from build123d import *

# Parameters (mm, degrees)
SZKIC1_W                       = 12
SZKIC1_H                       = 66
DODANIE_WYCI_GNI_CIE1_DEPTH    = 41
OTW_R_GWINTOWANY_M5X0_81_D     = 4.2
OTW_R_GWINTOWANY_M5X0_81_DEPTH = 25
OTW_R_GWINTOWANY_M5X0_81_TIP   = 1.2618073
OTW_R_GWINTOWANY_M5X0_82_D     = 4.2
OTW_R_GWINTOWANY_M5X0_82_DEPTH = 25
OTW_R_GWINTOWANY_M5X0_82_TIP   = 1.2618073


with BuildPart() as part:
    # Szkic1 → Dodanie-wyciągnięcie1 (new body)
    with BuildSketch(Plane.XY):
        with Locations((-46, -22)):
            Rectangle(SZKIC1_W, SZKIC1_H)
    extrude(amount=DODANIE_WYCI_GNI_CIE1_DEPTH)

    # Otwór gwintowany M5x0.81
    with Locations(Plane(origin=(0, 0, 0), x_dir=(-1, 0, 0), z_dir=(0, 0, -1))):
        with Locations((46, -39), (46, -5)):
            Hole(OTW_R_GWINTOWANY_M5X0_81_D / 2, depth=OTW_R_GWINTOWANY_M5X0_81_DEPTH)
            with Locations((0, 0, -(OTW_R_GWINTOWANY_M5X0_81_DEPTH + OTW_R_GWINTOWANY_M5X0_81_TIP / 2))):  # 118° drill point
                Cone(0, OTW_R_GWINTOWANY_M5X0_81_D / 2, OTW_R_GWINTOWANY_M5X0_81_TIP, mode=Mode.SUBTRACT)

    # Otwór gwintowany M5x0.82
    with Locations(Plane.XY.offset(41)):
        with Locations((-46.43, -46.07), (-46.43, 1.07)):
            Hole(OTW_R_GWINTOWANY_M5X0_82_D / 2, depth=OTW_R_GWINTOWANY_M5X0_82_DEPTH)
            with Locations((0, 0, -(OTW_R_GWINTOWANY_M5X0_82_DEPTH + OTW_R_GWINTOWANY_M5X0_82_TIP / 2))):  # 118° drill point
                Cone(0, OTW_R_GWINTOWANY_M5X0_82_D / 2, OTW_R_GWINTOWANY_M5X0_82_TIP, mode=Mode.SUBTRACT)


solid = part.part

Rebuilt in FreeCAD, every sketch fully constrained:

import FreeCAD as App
import Part
import Sketcher
from FreeCAD import Vector
Q = App.Units.Quantity


def add_polygon(sketch, points):
    """Adds a closed chain of lines whose ends are joined by coincident constraints."""
    first, n = sketch.GeometryCount, len(points)
    for a, b in zip(points, points[1:] + points[:1]):
        sketch.addGeometry(Part.LineSegment(App.Vector(*a, 0), App.Vector(*b, 0)), False)
    for i in range(n):
        sketch.addConstraint(Sketcher.Constraint("Coincident", first + i, 2, first + (i + 1) % n, 1))

doc = App.newDocument("Part")
body = doc.addObject("PartDesign::Body", "Body")

# Sketch on XY plane
sketch1 = body.newObject("Sketcher::SketchObject", "Sketch")
sketch1.AttachmentSupport = (doc.getObject("XY_Plane"), [""])
sketch1.MapMode = "FlatFace"
add_polygon(sketch1, [(-52, 11), (-52, -55), (-40, -55), (-40, 11)])  # lines 0-3
sketch1.addConstraint([
    Sketcher.Constraint("Vertical", 0),
    Sketcher.Constraint("Horizontal", 1),
    Sketcher.Constraint("Vertical", 2),
    Sketcher.Constraint("Horizontal", 3),
    Sketcher.Constraint("DistanceX", 1, 1, 1, 2, Q("12 mm")),
    Sketcher.Constraint("DistanceY", 0, 2, 0, 1, Q("66 mm")),
    Sketcher.Constraint("DistanceX", 0, 2, -1, 1, Q("52 mm")),
    Sketcher.Constraint("DistanceY", 0, 2, -1, 1, Q("55 mm")),
])
pad1 = body.newObject("PartDesign::Pad", "Pad")
pad1.Profile = sketch1
pad1.Length = 41

# Sketch on XY plane
sketch2 = body.newObject("Sketcher::SketchObject", "Sketch001")
sketch2.AttachmentSupport = (doc.getObject("XY_Plane"), [""])
sketch2.MapMode = "FlatFace"
sketch2.addGeometry([
    Part.Circle(Vector(-46, -39, 0), Vector(0, 0, 1), 2.1),
    Part.Circle(Vector(-46, -5, 0), Vector(0, 0, 1), 2.1),
], False)
sketch2.addConstraint([
    Sketcher.Constraint("Equal", 0, 1),
    Sketcher.Constraint("Vertical", 0, 3, 1, 3),
    Sketcher.Constraint("Diameter", 0, Q("4.2 mm")),
    Sketcher.Constraint("DistanceX", 0, 3, -1, 1, Q("46 mm")),
    Sketcher.Constraint("DistanceY", 0, 3, -1, 1, Q("39 mm")),
    Sketcher.Constraint("DistanceY", 1, 3, -1, 1, Q("5 mm")),
])
doc.recompute()
hole = body.newObject("PartDesign::Hole", "Hole")
hole.Profile = sketch2
hole.ThreadType = "None"
hole.Diameter = 4.2
hole.DepthType = "Dimension"
hole.Depth = 25
hole.DrillPoint = "Angled"
hole.DrillPointAngle = 118
hole.Reversed = True

# Sketch on XY plane
sketch3 = body.newObject("Sketcher::SketchObject", "Sketch002")
sketch3.AttachmentSupport = (doc.getObject("XY_Plane"), [""])
sketch3.MapMode = "FlatFace"
sketch3.AttachmentOffset = App.Placement(Vector(0, 0, 41), App.Rotation())
sketch3.addGeometry([
    Part.Circle(Vector(-46.4, -46.1, 0), Vector(0, 0, 1), 2.1),
    Part.Circle(Vector(-46.4, 1.1, 0), Vector(0, 0, 1), 2.1),
], False)
sketch3.addConstraint([
    Sketcher.Constraint("Equal", 0, 1),
    Sketcher.Constraint("Vertical", 0, 3, 1, 3),
    Sketcher.Constraint("Diameter", 0, Q("4.2 mm")),
    Sketcher.Constraint("DistanceX", 0, 3, -1, 1, Q("46.43 mm")),
    Sketcher.Constraint("DistanceY", 0, 3, -1, 1, Q("46.07 mm")),
    Sketcher.Constraint("DistanceY", -1, 1, 1, 3, Q("1.07 mm")),
])
doc.recompute()
hole2 = body.newObject("PartDesign::Hole", "Hole001")
hole2.Profile = sketch3
hole2.ThreadType = "None"
hole2.Diameter = 4.2
hole2.DepthType = "Dimension"
hole2.Depth = 25
hole2.DrillPoint = "Angled"
hole2.DrillPointAngle = 118

doc.recompute()
